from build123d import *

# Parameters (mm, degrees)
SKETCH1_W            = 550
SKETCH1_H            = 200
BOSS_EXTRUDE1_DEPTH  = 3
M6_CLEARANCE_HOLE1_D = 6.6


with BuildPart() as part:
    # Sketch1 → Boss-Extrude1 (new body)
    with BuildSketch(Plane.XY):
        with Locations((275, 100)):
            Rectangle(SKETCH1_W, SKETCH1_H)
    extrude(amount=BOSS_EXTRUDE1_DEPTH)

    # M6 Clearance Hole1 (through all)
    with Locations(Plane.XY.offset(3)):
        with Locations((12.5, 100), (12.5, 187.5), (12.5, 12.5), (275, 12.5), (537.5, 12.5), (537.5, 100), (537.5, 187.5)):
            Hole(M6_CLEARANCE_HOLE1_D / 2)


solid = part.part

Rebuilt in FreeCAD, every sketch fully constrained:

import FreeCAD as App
import Part
import Sketcher

doc = App.newDocument("Part")
params = doc.addObject("Spreadsheet::Sheet", "Params")
for row, (alias, value) in enumerate([
    ("sketch1_width", "550 mm"),
    ("sketch1_height", "200 mm"),
    ("pad1_length", "3 mm"),
    ("sketch2_diameter", "6.6 mm"),
    ("hole_diameter", "6.6 mm"),
], start=1):
    params.set(f"A{row}", alias)
    params.set(f"B{row}", "=" + value)
    params.setAlias(f"B{row}", alias)

body = doc.addObject("PartDesign::Body", "Body")

sketch1 = doc.addObject("Sketcher::SketchObject", "Sketch")
body.addObject(sketch1)
sketch1.AttachmentSupport = (doc.XY_Plane, [""])
sketch1.MapMode = "FlatFace"
sketch1.addGeometry([
    Part.LineSegment(App.Vector(0, 200, 0), App.Vector(0, 0, 0)),
    Part.LineSegment(App.Vector(0, 0, 0), App.Vector(550, 0, 0)),
    Part.LineSegment(App.Vector(550, 0, 0), App.Vector(550, 200, 0)),
    Part.LineSegment(App.Vector(550, 200, 0), App.Vector(0, 200, 0)),
], False)
sketch1.addConstraint([
    Sketcher.Constraint("Coincident", 0, 2, 1, 1),
    Sketcher.Constraint("Coincident", 1, 2, 2, 1),
    Sketcher.Constraint("Coincident", 2, 2, 3, 1),
    Sketcher.Constraint("Coincident", 3, 2, 0, 1),
    Sketcher.Constraint("Vertical", 0),
    Sketcher.Constraint("Horizontal", 1),
    Sketcher.Constraint("Vertical", 2),
    Sketcher.Constraint("Horizontal", 3),
    Sketcher.Constraint("Coincident", 0, 2, -1, 1),
    Sketcher.Constraint("DistanceX", 1, 1, 1, 2, 550.0),
    Sketcher.Constraint("DistanceY", 0, 2, 0, 1, 200.0),
])
sketch1.setExpression("Constraints[9]", "Params.sketch1_width")
sketch1.setExpression("Constraints[10]", "Params.sketch1_height")
pad1 = doc.addObject("PartDesign::Pad", "Pad")
body.addObject(pad1)
pad1.Profile = sketch1
pad1.setExpression("Length", "Params.pad1_length")

sketch2 = doc.addObject("Sketcher::SketchObject", "Sketch001")
body.addObject(sketch2)
sketch2.AttachmentSupport = (doc.XY_Plane, [""])
sketch2.MapMode = "FlatFace"
sketch2.AttachmentOffset = App.Placement(App.Vector(0, 0, 3), App.Rotation())
sketch2.addGeometry([
    Part.Circle(App.Vector(12.5, 100, 0), App.Vector(0, 0, 1), 3.3),
    Part.Circle(App.Vector(12.5, 187.5, 0), App.Vector(0, 0, 1), 3.3),
    Part.Circle(App.Vector(12.5, 12.5, 0), App.Vector(0, 0, 1), 3.3),
    Part.Circle(App.Vector(275, 12.5, 0), App.Vector(0, 0, 1), 3.3),
    Part.Circle(App.Vector(537.5, 12.5, 0), App.Vector(0, 0, 1), 3.3),
    Part.Circle(App.Vector(537.5, 100, 0), App.Vector(0, 0, 1), 3.3),
    Part.Circle(App.Vector(537.5, 187.5, 0), App.Vector(0, 0, 1), 3.3),
], False)
sketch2.addConstraint([
    Sketcher.Constraint("Equal", 0, 1),
    Sketcher.Constraint("Equal", 1, 2),
    Sketcher.Constraint("Equal", 2, 3),
    Sketcher.Constraint("Equal", 3, 4),
    Sketcher.Constraint("Equal", 4, 5),
    Sketcher.Constraint("Equal", 5, 6),
    Sketcher.Constraint("Horizontal", 2, 3, 3, 3),
    Sketcher.Constraint("Horizontal", 3, 3, 4, 3),
    Sketcher.Constraint("Horizontal", 0, 3, 5, 3),
    Sketcher.Constraint("Horizontal", 1, 3, 6, 3),
    Sketcher.Constraint("Vertical", 0, 3, 1, 3),
    Sketcher.Constraint("Vertical", 1, 3, 2, 3),
    Sketcher.Constraint("Vertical", 4, 3, 5, 3),
    Sketcher.Constraint("Vertical", 5, 3, 6, 3),
    Sketcher.Constraint("Diameter", 0, 6.6),
    Sketcher.Constraint("DistanceY", -1, 1, 0, 3, 100.0),
    Sketcher.Constraint("DistanceX", -1, 1, 3, 3, 275.0),
    Sketcher.Constraint("DistanceY", 2, 3, 1, 3, 175.0),
    Sketcher.Constraint("DistanceX", 2, 3, 4, 3, 525.0),
    Sketcher.Constraint("DistanceX", -1, 1, 0, 3, 12.5),
    Sketcher.Constraint("DistanceY", -1, 1, 1, 3, 187.5),
])
sketch2.setExpression("Constraints[14]", "Params.sketch2_diameter")
doc.recompute()
hole = doc.addObject("PartDesign::Hole", "Hole")
body.addObject(hole)
hole.Profile = sketch2
hole.ThreadType = "None"
hole.setExpression("Diameter", "Params.hole_diameter")
hole.DepthType = "ThroughAll"

doc.recompute()
